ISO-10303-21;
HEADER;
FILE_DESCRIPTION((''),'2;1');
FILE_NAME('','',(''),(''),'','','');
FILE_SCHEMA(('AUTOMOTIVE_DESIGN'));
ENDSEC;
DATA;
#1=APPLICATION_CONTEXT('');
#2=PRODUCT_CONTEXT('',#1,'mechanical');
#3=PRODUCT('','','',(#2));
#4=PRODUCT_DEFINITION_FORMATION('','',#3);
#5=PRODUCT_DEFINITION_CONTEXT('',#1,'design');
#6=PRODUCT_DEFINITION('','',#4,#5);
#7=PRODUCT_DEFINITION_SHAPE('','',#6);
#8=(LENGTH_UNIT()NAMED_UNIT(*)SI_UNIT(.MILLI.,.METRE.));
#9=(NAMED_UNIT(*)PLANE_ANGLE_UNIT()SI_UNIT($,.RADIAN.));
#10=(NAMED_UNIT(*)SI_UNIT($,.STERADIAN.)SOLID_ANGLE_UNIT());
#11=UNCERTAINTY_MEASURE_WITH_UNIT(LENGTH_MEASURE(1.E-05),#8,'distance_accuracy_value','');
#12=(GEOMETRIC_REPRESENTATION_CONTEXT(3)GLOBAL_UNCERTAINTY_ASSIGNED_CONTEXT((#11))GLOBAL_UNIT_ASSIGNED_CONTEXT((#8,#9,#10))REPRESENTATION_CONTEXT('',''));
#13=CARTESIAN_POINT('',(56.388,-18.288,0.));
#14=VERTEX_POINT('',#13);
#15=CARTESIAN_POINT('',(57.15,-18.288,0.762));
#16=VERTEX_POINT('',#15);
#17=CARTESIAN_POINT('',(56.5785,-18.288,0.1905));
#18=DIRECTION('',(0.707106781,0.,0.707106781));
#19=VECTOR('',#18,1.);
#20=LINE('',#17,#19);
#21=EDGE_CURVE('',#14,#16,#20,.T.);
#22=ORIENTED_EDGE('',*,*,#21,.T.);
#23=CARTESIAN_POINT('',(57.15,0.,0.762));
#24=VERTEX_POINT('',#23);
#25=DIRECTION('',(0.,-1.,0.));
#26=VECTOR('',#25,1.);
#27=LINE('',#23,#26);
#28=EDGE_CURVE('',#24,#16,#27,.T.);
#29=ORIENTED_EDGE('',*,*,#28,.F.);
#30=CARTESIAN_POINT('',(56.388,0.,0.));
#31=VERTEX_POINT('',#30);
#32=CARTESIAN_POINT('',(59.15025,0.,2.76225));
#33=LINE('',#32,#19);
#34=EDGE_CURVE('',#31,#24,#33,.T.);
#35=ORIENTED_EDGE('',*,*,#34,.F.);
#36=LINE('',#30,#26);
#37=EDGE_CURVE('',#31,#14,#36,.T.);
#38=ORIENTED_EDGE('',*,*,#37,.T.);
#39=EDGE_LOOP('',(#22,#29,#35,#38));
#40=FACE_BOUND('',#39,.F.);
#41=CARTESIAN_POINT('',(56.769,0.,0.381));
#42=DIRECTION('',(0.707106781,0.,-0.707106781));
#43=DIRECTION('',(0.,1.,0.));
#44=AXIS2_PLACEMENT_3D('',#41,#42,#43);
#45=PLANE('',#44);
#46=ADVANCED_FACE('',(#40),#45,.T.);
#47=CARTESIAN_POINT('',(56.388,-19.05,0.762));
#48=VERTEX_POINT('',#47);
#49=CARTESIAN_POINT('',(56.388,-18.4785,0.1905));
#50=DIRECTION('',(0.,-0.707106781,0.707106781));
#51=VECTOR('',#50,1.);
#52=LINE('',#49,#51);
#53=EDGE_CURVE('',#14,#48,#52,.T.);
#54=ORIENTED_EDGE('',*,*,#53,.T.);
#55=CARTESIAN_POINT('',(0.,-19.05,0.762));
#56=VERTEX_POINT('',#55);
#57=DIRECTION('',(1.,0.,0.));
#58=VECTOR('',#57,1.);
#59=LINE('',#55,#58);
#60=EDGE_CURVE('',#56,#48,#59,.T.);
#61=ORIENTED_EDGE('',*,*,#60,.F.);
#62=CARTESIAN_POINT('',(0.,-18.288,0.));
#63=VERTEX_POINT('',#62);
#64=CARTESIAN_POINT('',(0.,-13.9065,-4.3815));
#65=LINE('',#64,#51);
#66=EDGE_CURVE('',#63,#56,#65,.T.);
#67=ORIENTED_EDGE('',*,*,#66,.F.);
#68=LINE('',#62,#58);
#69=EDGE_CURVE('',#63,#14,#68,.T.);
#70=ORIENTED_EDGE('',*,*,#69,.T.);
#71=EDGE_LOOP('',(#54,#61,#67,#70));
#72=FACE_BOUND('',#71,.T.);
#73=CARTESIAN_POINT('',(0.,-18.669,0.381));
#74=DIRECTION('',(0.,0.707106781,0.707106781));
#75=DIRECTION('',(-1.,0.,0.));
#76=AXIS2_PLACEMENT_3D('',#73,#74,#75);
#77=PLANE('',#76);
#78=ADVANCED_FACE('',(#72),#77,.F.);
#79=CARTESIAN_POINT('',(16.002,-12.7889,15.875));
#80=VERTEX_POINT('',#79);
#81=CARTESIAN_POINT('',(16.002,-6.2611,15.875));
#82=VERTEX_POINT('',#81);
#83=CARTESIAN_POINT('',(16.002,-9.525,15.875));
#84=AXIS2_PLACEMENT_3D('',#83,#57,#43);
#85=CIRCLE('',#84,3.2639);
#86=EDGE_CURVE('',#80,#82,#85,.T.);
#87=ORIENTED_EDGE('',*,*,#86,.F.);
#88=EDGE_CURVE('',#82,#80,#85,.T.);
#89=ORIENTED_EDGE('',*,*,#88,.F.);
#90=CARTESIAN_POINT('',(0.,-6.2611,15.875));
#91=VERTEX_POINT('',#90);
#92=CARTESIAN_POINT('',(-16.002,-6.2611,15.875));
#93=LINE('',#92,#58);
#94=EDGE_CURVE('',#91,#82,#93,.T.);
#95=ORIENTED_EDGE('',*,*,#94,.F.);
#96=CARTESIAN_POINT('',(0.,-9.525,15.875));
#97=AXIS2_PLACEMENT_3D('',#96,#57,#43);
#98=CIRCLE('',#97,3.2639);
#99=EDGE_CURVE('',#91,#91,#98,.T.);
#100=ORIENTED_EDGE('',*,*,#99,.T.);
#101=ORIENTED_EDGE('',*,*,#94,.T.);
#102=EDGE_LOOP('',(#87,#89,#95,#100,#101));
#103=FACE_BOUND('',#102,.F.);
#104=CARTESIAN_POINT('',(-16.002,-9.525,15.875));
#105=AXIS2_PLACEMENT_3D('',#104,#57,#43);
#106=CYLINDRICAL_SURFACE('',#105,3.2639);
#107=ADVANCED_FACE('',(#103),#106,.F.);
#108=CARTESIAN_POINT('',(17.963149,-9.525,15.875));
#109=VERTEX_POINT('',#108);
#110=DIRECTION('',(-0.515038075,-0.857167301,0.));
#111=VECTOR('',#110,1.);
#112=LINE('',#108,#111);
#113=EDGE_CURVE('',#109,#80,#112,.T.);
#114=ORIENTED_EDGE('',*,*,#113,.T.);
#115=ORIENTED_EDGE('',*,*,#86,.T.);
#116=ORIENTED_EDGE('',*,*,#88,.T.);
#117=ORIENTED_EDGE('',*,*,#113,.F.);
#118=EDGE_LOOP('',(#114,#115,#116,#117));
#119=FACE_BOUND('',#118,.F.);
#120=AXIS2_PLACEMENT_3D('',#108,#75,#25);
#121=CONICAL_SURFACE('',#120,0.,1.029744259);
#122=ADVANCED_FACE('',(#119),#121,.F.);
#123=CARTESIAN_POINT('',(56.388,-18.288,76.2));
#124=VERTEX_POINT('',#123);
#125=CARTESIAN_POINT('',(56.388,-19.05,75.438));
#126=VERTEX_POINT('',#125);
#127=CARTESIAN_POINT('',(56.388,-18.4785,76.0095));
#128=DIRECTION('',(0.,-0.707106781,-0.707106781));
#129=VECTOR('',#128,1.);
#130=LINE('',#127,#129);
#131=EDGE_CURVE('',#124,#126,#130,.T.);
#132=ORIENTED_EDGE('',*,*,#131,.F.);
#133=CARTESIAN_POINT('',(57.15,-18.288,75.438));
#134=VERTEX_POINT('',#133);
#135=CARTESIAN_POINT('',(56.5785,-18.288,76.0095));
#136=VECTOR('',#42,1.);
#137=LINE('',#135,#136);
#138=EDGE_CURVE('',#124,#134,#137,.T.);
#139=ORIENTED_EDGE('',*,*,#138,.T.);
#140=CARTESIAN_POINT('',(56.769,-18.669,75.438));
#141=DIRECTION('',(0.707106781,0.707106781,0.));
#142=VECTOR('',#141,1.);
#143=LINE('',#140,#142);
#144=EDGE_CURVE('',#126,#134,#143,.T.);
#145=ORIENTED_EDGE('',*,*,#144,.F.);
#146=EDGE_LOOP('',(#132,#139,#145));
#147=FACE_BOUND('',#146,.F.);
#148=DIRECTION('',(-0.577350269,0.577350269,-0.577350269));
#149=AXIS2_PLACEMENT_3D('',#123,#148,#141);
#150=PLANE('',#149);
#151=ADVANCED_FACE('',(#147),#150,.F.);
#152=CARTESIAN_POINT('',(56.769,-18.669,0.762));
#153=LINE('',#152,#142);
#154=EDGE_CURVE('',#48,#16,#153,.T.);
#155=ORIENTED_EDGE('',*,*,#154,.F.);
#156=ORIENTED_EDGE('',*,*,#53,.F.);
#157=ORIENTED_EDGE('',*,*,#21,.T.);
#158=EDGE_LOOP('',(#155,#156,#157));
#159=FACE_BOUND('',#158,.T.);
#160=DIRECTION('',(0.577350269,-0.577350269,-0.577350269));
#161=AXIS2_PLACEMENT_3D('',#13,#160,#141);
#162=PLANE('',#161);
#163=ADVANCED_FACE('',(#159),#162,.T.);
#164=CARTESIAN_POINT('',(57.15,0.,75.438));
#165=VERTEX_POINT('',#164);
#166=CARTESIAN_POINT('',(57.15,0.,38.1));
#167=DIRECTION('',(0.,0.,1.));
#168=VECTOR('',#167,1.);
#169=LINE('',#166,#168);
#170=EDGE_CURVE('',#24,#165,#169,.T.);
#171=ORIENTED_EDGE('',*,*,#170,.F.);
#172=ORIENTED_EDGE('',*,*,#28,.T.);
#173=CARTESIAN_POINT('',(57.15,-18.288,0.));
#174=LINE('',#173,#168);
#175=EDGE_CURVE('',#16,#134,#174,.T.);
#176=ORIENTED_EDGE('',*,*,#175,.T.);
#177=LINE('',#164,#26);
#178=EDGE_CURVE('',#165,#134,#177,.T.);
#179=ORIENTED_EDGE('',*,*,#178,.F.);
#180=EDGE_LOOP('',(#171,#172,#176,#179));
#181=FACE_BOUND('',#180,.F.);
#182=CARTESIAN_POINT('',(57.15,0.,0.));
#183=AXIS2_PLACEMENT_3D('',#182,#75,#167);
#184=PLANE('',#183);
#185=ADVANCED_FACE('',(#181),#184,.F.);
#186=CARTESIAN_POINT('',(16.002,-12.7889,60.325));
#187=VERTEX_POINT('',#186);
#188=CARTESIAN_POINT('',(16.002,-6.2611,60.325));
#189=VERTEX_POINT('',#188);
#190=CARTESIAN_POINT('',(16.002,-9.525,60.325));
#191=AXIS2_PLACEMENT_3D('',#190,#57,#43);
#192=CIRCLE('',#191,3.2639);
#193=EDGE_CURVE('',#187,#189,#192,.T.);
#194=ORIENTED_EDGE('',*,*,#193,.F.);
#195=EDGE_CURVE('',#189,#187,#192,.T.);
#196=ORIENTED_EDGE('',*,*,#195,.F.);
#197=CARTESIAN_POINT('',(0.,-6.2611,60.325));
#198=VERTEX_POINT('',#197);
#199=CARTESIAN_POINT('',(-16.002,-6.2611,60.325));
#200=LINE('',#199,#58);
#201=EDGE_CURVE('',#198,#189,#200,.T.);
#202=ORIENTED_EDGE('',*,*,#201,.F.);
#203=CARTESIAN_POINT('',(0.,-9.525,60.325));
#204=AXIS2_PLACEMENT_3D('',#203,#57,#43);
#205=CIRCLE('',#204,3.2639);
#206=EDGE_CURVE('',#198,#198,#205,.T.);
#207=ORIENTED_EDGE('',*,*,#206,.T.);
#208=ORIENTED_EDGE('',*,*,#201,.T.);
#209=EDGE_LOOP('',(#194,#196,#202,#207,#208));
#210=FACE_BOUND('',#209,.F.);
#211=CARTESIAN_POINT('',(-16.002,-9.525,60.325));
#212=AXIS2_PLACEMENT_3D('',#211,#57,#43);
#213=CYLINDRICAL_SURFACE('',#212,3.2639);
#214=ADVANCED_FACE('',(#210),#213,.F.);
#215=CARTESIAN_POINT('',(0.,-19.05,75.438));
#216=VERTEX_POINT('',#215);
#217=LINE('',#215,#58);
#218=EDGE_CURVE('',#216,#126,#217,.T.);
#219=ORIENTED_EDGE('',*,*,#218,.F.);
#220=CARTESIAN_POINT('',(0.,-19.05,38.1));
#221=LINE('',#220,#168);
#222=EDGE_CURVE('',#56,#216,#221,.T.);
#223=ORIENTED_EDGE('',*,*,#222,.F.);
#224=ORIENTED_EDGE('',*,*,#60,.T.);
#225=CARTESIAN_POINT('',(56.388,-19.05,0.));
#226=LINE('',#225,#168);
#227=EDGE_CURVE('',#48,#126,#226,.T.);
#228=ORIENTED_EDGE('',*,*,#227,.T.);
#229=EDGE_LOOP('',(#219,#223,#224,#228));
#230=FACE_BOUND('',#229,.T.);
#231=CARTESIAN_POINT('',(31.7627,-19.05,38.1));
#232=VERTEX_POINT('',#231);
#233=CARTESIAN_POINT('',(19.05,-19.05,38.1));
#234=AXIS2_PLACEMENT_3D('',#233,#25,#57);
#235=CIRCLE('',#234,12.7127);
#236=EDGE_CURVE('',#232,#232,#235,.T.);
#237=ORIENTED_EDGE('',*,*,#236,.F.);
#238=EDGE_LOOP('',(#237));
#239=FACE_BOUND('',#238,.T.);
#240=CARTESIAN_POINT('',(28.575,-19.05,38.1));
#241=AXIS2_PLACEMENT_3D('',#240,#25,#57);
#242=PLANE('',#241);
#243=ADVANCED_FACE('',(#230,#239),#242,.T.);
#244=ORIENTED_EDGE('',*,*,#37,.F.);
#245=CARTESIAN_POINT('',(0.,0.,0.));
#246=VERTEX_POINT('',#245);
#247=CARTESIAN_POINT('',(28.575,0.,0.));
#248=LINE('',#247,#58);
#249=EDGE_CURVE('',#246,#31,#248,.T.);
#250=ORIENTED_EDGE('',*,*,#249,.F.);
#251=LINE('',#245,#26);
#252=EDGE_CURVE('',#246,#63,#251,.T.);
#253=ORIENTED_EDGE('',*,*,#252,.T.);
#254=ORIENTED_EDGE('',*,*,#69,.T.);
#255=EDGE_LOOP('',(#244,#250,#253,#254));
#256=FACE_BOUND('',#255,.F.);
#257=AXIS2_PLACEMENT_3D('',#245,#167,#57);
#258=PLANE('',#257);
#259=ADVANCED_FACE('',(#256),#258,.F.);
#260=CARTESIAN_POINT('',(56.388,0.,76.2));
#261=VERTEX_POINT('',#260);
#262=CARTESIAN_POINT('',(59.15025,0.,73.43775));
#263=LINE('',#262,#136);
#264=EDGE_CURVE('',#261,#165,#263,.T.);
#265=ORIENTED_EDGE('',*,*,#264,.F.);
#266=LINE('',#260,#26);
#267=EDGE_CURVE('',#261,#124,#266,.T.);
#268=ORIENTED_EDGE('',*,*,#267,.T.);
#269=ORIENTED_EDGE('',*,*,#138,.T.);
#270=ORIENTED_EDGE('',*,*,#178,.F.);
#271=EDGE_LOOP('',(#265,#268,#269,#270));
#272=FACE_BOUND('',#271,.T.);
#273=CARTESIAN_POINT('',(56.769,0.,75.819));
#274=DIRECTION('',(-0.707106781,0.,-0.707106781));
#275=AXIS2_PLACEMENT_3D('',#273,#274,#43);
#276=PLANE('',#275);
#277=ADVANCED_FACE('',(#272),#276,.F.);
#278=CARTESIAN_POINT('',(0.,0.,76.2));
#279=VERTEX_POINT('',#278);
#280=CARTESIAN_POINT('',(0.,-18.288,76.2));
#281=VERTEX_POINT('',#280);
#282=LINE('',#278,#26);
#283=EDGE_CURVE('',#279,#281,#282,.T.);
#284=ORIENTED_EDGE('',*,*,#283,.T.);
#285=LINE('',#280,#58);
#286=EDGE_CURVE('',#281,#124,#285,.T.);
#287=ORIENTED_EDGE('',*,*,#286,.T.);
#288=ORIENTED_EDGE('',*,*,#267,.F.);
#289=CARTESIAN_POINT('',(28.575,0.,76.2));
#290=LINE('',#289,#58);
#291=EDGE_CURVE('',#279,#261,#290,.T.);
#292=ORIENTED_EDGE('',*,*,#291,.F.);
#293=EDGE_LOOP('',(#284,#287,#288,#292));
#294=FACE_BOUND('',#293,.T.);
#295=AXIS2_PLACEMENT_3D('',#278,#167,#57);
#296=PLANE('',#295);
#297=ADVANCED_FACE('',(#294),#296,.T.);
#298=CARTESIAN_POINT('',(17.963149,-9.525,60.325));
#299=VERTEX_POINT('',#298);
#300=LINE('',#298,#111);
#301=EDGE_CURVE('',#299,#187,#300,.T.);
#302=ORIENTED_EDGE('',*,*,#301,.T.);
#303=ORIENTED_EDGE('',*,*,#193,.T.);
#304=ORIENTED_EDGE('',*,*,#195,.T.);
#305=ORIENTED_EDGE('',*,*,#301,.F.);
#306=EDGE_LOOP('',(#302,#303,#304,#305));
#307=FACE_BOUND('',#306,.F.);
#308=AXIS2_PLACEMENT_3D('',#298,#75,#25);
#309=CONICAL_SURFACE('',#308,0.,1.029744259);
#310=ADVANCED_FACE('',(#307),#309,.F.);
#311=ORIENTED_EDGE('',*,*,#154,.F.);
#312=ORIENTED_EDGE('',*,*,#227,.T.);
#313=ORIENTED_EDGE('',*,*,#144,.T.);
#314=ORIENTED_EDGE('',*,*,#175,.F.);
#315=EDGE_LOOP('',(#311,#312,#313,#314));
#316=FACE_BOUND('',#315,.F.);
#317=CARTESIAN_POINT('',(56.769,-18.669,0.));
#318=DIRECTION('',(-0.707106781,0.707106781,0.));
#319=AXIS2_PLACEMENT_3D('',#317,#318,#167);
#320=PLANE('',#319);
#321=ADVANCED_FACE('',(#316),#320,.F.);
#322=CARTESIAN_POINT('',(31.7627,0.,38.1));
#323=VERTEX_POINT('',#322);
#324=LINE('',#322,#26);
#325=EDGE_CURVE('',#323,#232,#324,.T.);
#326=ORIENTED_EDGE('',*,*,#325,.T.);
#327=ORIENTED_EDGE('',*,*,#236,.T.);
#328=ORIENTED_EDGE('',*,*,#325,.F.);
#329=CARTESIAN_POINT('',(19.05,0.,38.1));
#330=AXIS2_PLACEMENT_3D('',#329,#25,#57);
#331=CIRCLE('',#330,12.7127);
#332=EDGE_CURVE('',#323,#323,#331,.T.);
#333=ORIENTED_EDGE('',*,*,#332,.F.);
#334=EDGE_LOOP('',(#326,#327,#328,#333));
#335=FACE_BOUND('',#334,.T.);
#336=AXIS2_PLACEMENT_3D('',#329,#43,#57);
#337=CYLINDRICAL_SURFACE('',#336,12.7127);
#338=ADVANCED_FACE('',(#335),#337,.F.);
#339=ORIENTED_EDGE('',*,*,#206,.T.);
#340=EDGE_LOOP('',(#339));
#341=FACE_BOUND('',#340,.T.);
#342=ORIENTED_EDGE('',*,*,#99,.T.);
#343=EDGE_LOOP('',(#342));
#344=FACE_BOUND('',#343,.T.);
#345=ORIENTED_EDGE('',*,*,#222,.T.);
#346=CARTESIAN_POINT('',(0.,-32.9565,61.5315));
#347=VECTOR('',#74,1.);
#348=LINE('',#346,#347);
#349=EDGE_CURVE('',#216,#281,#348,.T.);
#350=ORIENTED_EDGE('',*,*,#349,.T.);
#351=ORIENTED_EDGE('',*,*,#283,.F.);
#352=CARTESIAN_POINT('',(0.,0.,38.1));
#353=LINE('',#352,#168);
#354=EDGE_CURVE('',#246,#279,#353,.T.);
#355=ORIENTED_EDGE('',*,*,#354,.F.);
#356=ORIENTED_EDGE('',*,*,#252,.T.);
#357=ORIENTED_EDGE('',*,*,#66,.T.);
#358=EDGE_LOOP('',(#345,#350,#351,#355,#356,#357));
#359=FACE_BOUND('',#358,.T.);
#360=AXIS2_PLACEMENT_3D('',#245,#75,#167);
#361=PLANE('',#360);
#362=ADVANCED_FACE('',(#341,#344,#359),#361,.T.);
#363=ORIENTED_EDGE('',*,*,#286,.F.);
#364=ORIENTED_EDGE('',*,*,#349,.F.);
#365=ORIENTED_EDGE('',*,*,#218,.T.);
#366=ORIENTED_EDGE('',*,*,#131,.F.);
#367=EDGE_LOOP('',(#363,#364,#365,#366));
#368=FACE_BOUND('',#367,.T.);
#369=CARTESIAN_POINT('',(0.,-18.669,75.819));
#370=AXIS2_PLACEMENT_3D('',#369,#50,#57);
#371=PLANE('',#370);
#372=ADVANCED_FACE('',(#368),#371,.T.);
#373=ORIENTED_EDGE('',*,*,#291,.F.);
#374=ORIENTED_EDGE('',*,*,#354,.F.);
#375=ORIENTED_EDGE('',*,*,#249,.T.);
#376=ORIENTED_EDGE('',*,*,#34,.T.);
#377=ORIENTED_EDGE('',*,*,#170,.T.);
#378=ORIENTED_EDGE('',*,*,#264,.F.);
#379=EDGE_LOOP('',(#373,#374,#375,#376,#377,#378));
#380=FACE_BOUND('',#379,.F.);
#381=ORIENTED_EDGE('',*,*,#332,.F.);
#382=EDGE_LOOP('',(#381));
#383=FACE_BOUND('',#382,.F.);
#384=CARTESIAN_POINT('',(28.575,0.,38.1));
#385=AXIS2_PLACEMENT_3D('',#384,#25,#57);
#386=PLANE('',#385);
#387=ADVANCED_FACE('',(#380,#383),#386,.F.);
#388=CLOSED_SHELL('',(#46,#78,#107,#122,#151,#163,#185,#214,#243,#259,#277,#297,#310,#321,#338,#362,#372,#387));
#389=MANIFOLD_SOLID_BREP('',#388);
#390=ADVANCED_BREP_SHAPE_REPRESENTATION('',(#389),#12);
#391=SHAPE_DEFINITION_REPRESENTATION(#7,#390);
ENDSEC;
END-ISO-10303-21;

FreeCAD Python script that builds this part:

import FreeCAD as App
import Part
import Sketcher
from FreeCAD import Vector
Q = App.Units.Quantity


def edges_at(feature, points):
    """Names of the edges that pass closest to the given points."""
    edges = feature.Shape.Edges
    near = lambda p: min(range(len(edges)), key=lambda i: edges[i].distToShape(Part.Vertex(*p))[0])
    return sorted({f"Edge{near(p) + 1}" for p in points})

doc = App.newDocument("Part")
body = doc.addObject("PartDesign::Body", "Body")

# Sketch on XZ plane
sketch1 = doc.addObject("Sketcher::SketchObject", "Sketch")
body.addObject(sketch1)
sketch1.AttachmentSupport = (doc.XZ_Plane, [""])
sketch1.MapMode = "FlatFace"
sketch1.addGeometry([
    Part.LineSegment(Vector(0, 76, 0), Vector(0, 0, 0)),  # 0
    Part.LineSegment(Vector(0, 0, 0), Vector(57, 0, 0)),  # 1
    Part.LineSegment(Vector(57, 0, 0), Vector(57, 76, 0)),  # 2
    Part.LineSegment(Vector(57, 76, 0), Vector(0, 76, 0)),  # 3
    Part.Circle(Vector(19, 38, 0), Vector(0, 0, 1), 13),  # 4
], False)
sketch1.addConstraint([
    Sketcher.Constraint("Coincident", 0, 2, 1, 1),
    Sketcher.Constraint("Coincident", 1, 2, 2, 1),
    Sketcher.Constraint("Coincident", 2, 2, 3, 1),
    Sketcher.Constraint("Coincident", 3, 2, 0, 1),
    Sketcher.Constraint("Vertical", 0),
    Sketcher.Constraint("Horizontal", 1),
    Sketcher.Constraint("Vertical", 2),
    Sketcher.Constraint("Horizontal", 3),
    Sketcher.Constraint("Coincident", 0, 2, -1, 1),
    Sketcher.Constraint("DistanceY", 0, 2, 0, 1, Q("3 in")),
    Sketcher.Constraint("Diameter", 4, Q("1.001 in")),
    Sketcher.Constraint("DistanceX", 1, 1, 1, 2, Q("2.25 in")),
    Sketcher.Constraint("DistanceY", -1, 1, 4, 3, Q("1.5 in")),
    Sketcher.Constraint("DistanceX", 4, 3, 1, 2, Q("1.5 in")),
])
pad1 = doc.addObject("PartDesign::Pad", "Pad")
body.addObject(pad1)
pad1.Profile = sketch1
pad1.Length = Q("0.75 in")

# Sketch on YZ plane
sketch2 = doc.addObject("Sketcher::SketchObject", "Sketch001")
body.addObject(sketch2)
sketch2.AttachmentSupport = (doc.YZ_Plane, [""])
sketch2.MapMode = "FlatFace"
sketch2.addGeometry([
    Part.Circle(Vector(-9.5, 60.3, 0), Vector(0, 0, 1), 3.3),
    Part.Circle(Vector(-9.5, 15.9, 0), Vector(0, 0, 1), 3.3),
], False)
sketch2.addConstraint([
    Sketcher.Constraint("Equal", 0, 1),
    Sketcher.Constraint("Vertical", 0, 3, 1, 3),
    Sketcher.Constraint("Diameter", 0, Q("0.257 in")),
    Sketcher.Constraint("DistanceY", 1, 3, 0, 3, Q("1.75 in")),
    Sketcher.Constraint("DistanceX", 0, 3, -1, 1, Q("0.375 in")),
    Sketcher.Constraint("DistanceY", -1, 1, 0, 3, Q("2.375 in")),
])
doc.recompute()
hole = doc.addObject("PartDesign::Hole", "Hole")
body.addObject(hole)
hole.Profile = sketch2
hole.ThreadType = "None"
hole.Diameter = Q("0.257 in")
hole.DepthType = "Dimension"
hole.Depth = Q("0.63 in")
hole.DrillPoint = "Angled"
hole.DrillPointAngle = 118
hole.Reversed = True
doc.recompute()

chamfer = doc.addObject("PartDesign::Chamfer", "Chamfer")
body.addObject(chamfer)
chamfer.Base = (hole, edges_at(hole, [
    (57.15, -19.05, 38.1),
    (28.575, -19.05, 76.2),
    (28.575, -19.05, 0),
    (57.15, -9.525, 76.2),
    (57.15, -9.525, 0),
]))
chamfer.ChamferType = "Two distances"
chamfer.Size = Q("0.03 in")
chamfer.Size2 = Q("0.03 in")

doc.recompute()
